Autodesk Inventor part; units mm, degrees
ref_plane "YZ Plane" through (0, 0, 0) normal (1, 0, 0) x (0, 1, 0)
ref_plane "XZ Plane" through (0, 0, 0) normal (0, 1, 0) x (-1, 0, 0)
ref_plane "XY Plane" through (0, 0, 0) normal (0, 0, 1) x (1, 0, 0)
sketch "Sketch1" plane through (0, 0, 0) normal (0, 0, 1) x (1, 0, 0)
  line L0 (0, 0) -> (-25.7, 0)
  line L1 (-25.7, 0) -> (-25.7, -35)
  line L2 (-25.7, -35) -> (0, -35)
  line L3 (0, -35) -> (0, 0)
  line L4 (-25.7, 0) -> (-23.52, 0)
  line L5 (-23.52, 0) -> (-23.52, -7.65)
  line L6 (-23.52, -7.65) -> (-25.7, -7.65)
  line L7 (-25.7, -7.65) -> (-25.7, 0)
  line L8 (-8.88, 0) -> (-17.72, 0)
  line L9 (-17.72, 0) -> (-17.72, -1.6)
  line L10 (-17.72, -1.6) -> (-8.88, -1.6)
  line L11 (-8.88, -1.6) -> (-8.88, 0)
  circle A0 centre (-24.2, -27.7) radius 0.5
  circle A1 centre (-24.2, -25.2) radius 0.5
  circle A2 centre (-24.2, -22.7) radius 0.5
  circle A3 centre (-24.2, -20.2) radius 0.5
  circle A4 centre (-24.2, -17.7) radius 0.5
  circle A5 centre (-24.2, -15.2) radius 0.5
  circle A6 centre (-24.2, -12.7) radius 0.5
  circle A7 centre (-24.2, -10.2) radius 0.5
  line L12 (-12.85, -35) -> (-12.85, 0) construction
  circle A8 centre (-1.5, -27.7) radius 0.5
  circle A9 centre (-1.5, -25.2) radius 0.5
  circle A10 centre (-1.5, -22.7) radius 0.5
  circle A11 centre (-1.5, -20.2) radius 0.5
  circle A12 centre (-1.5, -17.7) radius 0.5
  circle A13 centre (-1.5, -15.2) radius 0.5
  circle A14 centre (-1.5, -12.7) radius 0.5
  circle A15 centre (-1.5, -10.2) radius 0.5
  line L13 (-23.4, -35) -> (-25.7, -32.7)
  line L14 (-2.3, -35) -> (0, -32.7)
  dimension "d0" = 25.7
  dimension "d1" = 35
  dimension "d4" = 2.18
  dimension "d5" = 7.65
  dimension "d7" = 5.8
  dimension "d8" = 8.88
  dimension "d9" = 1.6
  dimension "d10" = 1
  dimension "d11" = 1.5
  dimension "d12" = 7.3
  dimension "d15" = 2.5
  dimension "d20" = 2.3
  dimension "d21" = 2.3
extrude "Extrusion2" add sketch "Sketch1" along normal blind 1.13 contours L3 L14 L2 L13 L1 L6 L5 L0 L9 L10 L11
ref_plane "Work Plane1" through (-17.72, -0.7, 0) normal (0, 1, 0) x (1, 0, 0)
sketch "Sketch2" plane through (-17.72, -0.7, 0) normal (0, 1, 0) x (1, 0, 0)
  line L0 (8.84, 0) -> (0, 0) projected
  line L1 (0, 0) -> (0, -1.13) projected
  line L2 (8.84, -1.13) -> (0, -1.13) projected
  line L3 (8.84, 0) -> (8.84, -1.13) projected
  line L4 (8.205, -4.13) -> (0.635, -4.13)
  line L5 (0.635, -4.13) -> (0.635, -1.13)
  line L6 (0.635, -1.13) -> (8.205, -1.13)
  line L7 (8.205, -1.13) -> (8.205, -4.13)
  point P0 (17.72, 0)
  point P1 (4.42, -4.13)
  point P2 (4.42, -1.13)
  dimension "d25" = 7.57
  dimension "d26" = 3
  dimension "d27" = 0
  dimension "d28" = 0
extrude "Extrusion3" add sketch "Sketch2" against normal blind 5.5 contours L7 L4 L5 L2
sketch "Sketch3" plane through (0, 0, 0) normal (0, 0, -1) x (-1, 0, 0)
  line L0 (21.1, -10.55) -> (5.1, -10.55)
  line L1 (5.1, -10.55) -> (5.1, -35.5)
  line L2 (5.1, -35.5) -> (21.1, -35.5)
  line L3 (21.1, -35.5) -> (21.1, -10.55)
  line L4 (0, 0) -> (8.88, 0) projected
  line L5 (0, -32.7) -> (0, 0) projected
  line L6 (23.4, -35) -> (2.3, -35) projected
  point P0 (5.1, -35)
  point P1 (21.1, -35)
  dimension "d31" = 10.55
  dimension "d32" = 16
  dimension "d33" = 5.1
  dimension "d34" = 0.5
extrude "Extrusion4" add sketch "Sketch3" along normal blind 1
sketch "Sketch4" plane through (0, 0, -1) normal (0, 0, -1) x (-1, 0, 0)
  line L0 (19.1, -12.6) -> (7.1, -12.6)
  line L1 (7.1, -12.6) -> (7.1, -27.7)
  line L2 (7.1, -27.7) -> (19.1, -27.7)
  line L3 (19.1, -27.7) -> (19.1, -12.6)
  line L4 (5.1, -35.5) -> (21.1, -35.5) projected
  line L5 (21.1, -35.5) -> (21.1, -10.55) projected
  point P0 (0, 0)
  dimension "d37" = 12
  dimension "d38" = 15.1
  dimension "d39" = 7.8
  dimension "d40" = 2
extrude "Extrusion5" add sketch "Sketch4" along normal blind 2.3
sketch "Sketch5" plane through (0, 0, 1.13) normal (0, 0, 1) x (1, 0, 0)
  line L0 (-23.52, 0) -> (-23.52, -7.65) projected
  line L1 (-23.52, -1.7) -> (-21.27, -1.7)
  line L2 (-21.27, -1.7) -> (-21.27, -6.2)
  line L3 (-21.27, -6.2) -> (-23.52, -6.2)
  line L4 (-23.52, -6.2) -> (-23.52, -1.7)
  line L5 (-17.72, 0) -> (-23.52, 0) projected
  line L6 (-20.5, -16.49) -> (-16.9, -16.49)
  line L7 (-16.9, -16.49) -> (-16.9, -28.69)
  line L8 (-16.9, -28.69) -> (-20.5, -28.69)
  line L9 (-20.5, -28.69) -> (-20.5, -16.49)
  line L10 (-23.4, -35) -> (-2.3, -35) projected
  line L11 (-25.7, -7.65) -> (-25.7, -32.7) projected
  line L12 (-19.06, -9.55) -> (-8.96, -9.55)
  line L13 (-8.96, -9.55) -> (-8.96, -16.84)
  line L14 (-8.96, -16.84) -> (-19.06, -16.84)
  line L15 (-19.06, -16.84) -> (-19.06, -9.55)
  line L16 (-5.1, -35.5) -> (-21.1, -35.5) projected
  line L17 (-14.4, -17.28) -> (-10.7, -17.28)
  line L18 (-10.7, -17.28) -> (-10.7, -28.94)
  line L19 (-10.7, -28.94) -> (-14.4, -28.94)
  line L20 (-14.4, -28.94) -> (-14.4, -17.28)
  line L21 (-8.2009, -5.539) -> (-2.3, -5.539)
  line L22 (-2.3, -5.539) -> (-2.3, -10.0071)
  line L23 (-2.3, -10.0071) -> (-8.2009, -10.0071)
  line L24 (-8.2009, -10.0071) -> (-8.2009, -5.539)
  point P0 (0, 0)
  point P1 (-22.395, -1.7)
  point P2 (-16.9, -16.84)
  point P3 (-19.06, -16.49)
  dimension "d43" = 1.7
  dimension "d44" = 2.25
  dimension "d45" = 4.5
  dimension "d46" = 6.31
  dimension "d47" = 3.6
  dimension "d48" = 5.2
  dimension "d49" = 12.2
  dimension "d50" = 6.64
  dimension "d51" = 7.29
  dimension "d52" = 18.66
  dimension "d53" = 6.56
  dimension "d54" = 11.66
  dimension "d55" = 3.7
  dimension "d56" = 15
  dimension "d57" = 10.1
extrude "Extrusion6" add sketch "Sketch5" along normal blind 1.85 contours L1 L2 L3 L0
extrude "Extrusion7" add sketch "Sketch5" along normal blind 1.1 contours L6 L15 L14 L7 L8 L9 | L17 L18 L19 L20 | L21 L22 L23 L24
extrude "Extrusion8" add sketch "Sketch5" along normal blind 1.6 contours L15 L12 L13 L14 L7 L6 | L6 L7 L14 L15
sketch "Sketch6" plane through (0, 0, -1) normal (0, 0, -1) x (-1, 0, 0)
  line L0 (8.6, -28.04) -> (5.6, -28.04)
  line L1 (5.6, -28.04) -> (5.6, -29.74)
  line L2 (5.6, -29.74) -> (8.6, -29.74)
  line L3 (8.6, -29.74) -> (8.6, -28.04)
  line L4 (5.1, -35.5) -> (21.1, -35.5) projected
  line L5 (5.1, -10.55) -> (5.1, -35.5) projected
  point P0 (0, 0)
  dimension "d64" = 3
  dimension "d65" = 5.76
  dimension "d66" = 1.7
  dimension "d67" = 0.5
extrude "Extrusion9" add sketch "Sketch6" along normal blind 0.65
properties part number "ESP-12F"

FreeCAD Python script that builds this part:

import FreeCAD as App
import Part
import Sketcher

V = App.Vector
Q = App.Units.Quantity

doc = App.newDocument("Part")
body = doc.addObject("PartDesign::Body", "Body")

# Sketch on XY plane
sketch1 = body.newObject("Sketcher::SketchObject", "Sketch")
sketch1.AttachmentSupport = (doc.getObject("XY_Plane"), [""])
sketch1.MapMode = "FlatFace"
sketch1.addGeometry([
    Part.LineSegment(V(0, -32.7, 0), V(0, 0, 0)),  # 0
    Part.LineSegment(V(0, 0, 0), V(-8.88, 0, 0)),  # 1
    Part.LineSegment(V(-8.88, 0, 0), V(-8.88, -1.6, 0)),  # 2
    Part.LineSegment(V(-8.88, -1.6, 0), V(-17.72, -1.6, 0)),  # 3
    Part.LineSegment(V(-17.72, -1.6, 0), V(-17.72, 0, 0)),  # 4
    Part.LineSegment(V(-17.72, 0, 0), V(-23.52, 0, 0)),  # 5
    Part.LineSegment(V(-23.52, 0, 0), V(-23.52, -7.65, 0)),  # 6
    Part.LineSegment(V(-23.52, -7.65, 0), V(-25.7, -7.65, 0)),  # 7
    Part.LineSegment(V(-25.7, -7.65, 0), V(-25.7, -32.7, 0)),  # 8
    Part.LineSegment(V(-25.7, -32.7, 0), V(-23.4, -35, 0)),  # 9
    Part.LineSegment(V(-23.4, -35, 0), V(-2.3, -35, 0)),  # 10
    Part.LineSegment(V(-2.3, -35, 0), V(0, -32.7, 0)),  # 11
    Part.Circle(V(-24.2, -27.7, 0), V(0, 0, 1), 0.5),  # 12
    Part.Circle(V(-24.2, -25.2, 0), V(0, 0, 1), 0.5),  # 13
    Part.Circle(V(-24.2, -22.7, 0), V(0, 0, 1), 0.5),  # 14
    Part.Circle(V(-24.2, -20.2, 0), V(0, 0, 1), 0.5),  # 15
    Part.Circle(V(-24.2, -17.7, 0), V(0, 0, 1), 0.5),  # 16
    Part.Circle(V(-1.5, -27.7, 0), V(0, 0, 1), 0.5),  # 17
    Part.Circle(V(-1.5, -25.2, 0), V(0, 0, 1), 0.5),  # 18
    Part.Circle(V(-1.5, -22.7, 0), V(0, 0, 1), 0.5),  # 19
    Part.Circle(V(-1.5, -20.2, 0), V(0, 0, 1), 0.5),  # 20
    Part.Circle(V(-1.5, -17.7, 0), V(0, 0, 1), 0.5),  # 21
    Part.Circle(V(-24.2, -15.2, 0), V(0, 0, 1), 0.5),  # 22
    Part.Circle(V(-24.2, -12.7, 0), V(0, 0, 1), 0.5),  # 23
    Part.Circle(V(-24.2, -10.2, 0), V(0, 0, 1), 0.5),  # 24
    Part.Circle(V(-1.5, -15.2, 0), V(0, 0, 1), 0.5),  # 25
    Part.Circle(V(-1.5, -12.7, 0), V(0, 0, 1), 0.5),  # 26
    Part.Circle(V(-1.5, -10.2, 0), V(0, 0, 1), 0.5),  # 27
], False)
sketch1.addConstraint([
    Sketcher.Constraint("Coincident", 0, 2, 1, 1),
    Sketcher.Constraint("Coincident", 1, 2, 2, 1),
    Sketcher.Constraint("Coincident", 2, 2, 3, 1),
    Sketcher.Constraint("Coincident", 3, 2, 4, 1),
    Sketcher.Constraint("Coincident", 4, 2, 5, 1),
    Sketcher.Constraint("Coincident", 5, 2, 6, 1),
    Sketcher.Constraint("Coincident", 6, 2, 7, 1),
    Sketcher.Constraint("Coincident", 7, 2, 8, 1),
    Sketcher.Constraint("Coincident", 8, 2, 9, 1),
    Sketcher.Constraint("Coincident", 9, 2, 10, 1),
    Sketcher.Constraint("Coincident", 10, 2, 11, 1),
    Sketcher.Constraint("Coincident", 11, 2, 0, 1),
    Sketcher.Constraint("Vertical", 0),
    Sketcher.Constraint("Horizontal", 1),
    Sketcher.Constraint("Vertical", 2),
    Sketcher.Constraint("Horizontal", 3),
    Sketcher.Constraint("Vertical", 4),
    Sketcher.Constraint("Horizontal", 5),
    Sketcher.Constraint("Vertical", 6),
    Sketcher.Constraint("Horizontal", 7),
    Sketcher.Constraint("Vertical", 8),
    Sketcher.Constraint("Horizontal", 10),
    Sketcher.Constraint("Coincident", 0, 2, -1, 1),
    Sketcher.Constraint("Equal", 12, 13),
    Sketcher.Constraint("Equal", 13, 14),
    Sketcher.Constraint("Equal", 14, 15),
    Sketcher.Constraint("Equal", 15, 16),
    Sketcher.Constraint("Equal", 16, 17),
    Sketcher.Constraint("Equal", 17, 18),
    Sketcher.Constraint("Equal", 18, 19),
    Sketcher.Constraint("Equal", 19, 20),
    Sketcher.Constraint("Equal", 20, 21),
    Sketcher.Constraint("Equal", 21, 22),
    Sketcher.Constraint("Equal", 22, 23),
    Sketcher.Constraint("Equal", 23, 24),
    Sketcher.Constraint("Equal", 24, 25),
    Sketcher.Constraint("Equal", 25, 26),
    Sketcher.Constraint("Equal", 26, 27),
    Sketcher.Constraint("PointOnObject", 4, 2, -1),
    Sketcher.Constraint("Perpendicular", 9, 11),
    Sketcher.Constraint("Horizontal", 12, 3, 17, 3),
    Sketcher.Constraint("Horizontal", 13, 3, 18, 3),
    Sketcher.Constraint("Horizontal", 14, 3, 19, 3),
    Sketcher.Constraint("Horizontal", 15, 3, 20, 3),
    Sketcher.Constraint("Horizontal", 16, 3, 21, 3),
    Sketcher.Constraint("Horizontal", 22, 3, 25, 3),
    Sketcher.Constraint("Horizontal", 23, 3, 26, 3),
    Sketcher.Constraint("Horizontal", 24, 3, 27, 3),
    Sketcher.Constraint("Horizontal", 8, 2, 11, 2),
    Sketcher.Constraint("Vertical", 12, 3, 13, 3),
    Sketcher.Constraint("Vertical", 13, 3, 14, 3),
    Sketcher.Constraint("Vertical", 14, 3, 15, 3),
    Sketcher.Constraint("Vertical", 15, 3, 16, 3),
    Sketcher.Constraint("Vertical", 17, 3, 18, 3),
    Sketcher.Constraint("Vertical", 18, 3, 19, 3),
    Sketcher.Constraint("Vertical", 19, 3, 20, 3),
    Sketcher.Constraint("Vertical", 20, 3, 21, 3),
    Sketcher.Constraint("Vertical", 16, 3, 22, 3),
    Sketcher.Constraint("Vertical", 22, 3, 23, 3),
    Sketcher.Constraint("Vertical", 23, 3, 24, 3),
    Sketcher.Constraint("Vertical", 21, 3, 25, 3),
    Sketcher.Constraint("Vertical", 25, 3, 26, 3),
    Sketcher.Constraint("Vertical", 26, 3, 27, 3),
    Sketcher.Constraint("Equal", 9, 11),
    Sketcher.Constraint("Diameter", 12, Q("1 mm")),
    Sketcher.Constraint("DistanceX", 5, 2, 5, 1, Q("5.8 mm")),
    Sketcher.Constraint("DistanceY", 2, 2, 2, 1, Q("1.6 mm")),
    Sketcher.Constraint("DistanceY", 9, 2, -1, 1, Q("35 mm")),
    Sketcher.Constraint("DistanceY", 12, 3, 16, 3, Q("10 mm")),
    Sketcher.Constraint("DistanceY", 13, 3, 22, 3, Q("10 mm")),
    Sketcher.Constraint("DistanceY", 14, 3, 23, 3, Q("10 mm")),
    Sketcher.Constraint("DistanceY", 15, 3, 24, 3, Q("10 mm")),
    Sketcher.Constraint("DistanceY", 8, 2, 14, 3, Q("10 mm")),
    Sketcher.Constraint("DistanceX", 1, 2, 1, 1, Q("8.88 mm")),
    Sketcher.Constraint("DistanceX", 7, 2, 7, 1, Q("2.18 mm")),
    Sketcher.Constraint("DistanceY", 6, 2, 6, 1, Q("7.65 mm")),
    Sketcher.Constraint("DistanceX", 17, 3, -1, 1, Q("1.5 mm")),
    Sketcher.Constraint("DistanceX", 7, 2, -1, 1, Q("25.7 mm")),
    Sketcher.Constraint("DistanceX", 10, 2, -1, 1, Q("2.3 mm")),
    Sketcher.Constraint("DistanceY", 12, 3, 13, 3, Q("2.5 mm")),
    Sketcher.Constraint("DistanceY", 13, 3, 14, 3, Q("2.5 mm")),
    Sketcher.Constraint("DistanceY", 14, 3, 15, 3, Q("2.5 mm")),
    Sketcher.Constraint("DistanceX", 7, 2, 24, 3, Q("1.5 mm")),
])
pad1 = body.newObject("PartDesign::Pad", "Pad")
pad1.Profile = sketch1
pad1.Length = 1.13

# Sketch on XZ plane
sketch2 = body.newObject("Sketcher::SketchObject", "Sketch001")
sketch2.AttachmentSupport = (doc.getObject("XZ_Plane"), [""])
sketch2.MapMode = "FlatFace"
sketch2.AttachmentOffset = App.Placement(V(0, 0, 0.7), App.Rotation())
sketch2.addGeometry([
    Part.LineSegment(V(-9.515, 4.13, 0), V(-9.515, 1.13, 0)),
    Part.LineSegment(V(-9.515, 1.13, 0), V(-17.085, 1.13, 0)),
    Part.LineSegment(V(-17.085, 1.13, 0), V(-17.085, 4.13, 0)),
    Part.LineSegment(V(-17.085, 4.13, 0), V(-9.515, 4.13, 0)),
], False)
sketch2.addConstraint([
    Sketcher.Constraint("Coincident", 0, 2, 1, 1),
    Sketcher.Constraint("Coincident", 1, 2, 2, 1),
    Sketcher.Constraint("Coincident", 2, 2, 3, 1),
    Sketcher.Constraint("Coincident", 3, 2, 0, 1),
    Sketcher.Constraint("Vertical", 0),
    Sketcher.Constraint("Horizontal", 1),
    Sketcher.Constraint("Vertical", 2),
    Sketcher.Constraint("Horizontal", 3),
    Sketcher.Constraint("DistanceY", 0, 2, 0, 1, Q("3 mm")),
    Sketcher.Constraint("DistanceX", 1, 2, 1, 1, Q("7.57 mm")),
    Sketcher.Constraint("DistanceY", -1, 1, 0, 2, Q("1.13 mm")),
    Sketcher.Constraint("DistanceX", 0, 2, -1, 1, Q("9.515 mm")),
])
pad2 = body.newObject("PartDesign::Pad", "Pad001")
pad2.Profile = sketch2
pad2.Length = 5.5

# Sketch on XY plane
sketch3 = body.newObject("Sketcher::SketchObject", "Sketch002")
sketch3.AttachmentSupport = (doc.getObject("XY_Plane"), [""])
sketch3.MapMode = "FlatFace"
sketch3.addGeometry([
    Part.LineSegment(V(-21.1, -10.55, 0), V(-5.1, -10.55, 0)),
    Part.LineSegment(V(-5.1, -10.55, 0), V(-5.1, -35.5, 0)),
    Part.LineSegment(V(-5.1, -35.5, 0), V(-21.1, -35.5, 0)),
    Part.LineSegment(V(-21.1, -35.5, 0), V(-21.1, -10.55, 0)),
], False)
sketch3.addConstraint([
    Sketcher.Constraint("Coincident", 0, 2, 1, 1),
    Sketcher.Constraint("Coincident", 1, 2, 2, 1),
    Sketcher.Constraint("Coincident", 2, 2, 3, 1),
    Sketcher.Constraint("Coincident", 3, 2, 0, 1),
    Sketcher.Constraint("Horizontal", 0),
    Sketcher.Constraint("Vertical", 1),
    Sketcher.Constraint("Horizontal", 2),
    Sketcher.Constraint("Vertical", 3),
    Sketcher.Constraint("DistanceX", 0, 1, 0, 2, Q("16 mm")),
    Sketcher.Constraint("DistanceX", 0, 2, -1, 1, Q("5.1 mm")),
    Sketcher.Constraint("DistanceY", 0, 2, -1, 1, Q("10.55 mm")),
    Sketcher.Constraint("DistanceY", 1, 2, 1, 1, Q("24.95 mm")),
])
pad3 = body.newObject("PartDesign::Pad", "Pad002")
pad3.Profile = sketch3
pad3.Length = 1
pad3.Reversed = True

# Sketch on XY plane
sketch4 = body.newObject("Sketcher::SketchObject", "Sketch003")
sketch4.AttachmentSupport = (doc.getObject("XY_Plane"), [""])
sketch4.MapMode = "FlatFace"
sketch4.AttachmentOffset = App.Placement(V(0, 0, -1), App.Rotation())
sketch4.addGeometry([
    Part.LineSegment(V(-19.1, -27.7, 0), V(-19.1, -12.6, 0)),
    Part.LineSegment(V(-19.1, -12.6, 0), V(-7.1, -12.6, 0)),
    Part.LineSegment(V(-7.1, -12.6, 0), V(-7.1, -27.7, 0)),
    Part.LineSegment(V(-7.1, -27.7, 0), V(-19.1, -27.7, 0)),
], False)
sketch4.addConstraint([
    Sketcher.Constraint("Coincident", 0, 2, 1, 1),
    Sketcher.Constraint("Coincident", 1, 2, 2, 1),
    Sketcher.Constraint("Coincident", 2, 2, 3, 1),
    Sketcher.Constraint("Coincident", 3, 2, 0, 1),
    Sketcher.Constraint("Vertical", 0),
    Sketcher.Constraint("Horizontal", 1),
    Sketcher.Constraint("Vertical", 2),
    Sketcher.Constraint("Horizontal", 3),
    Sketcher.Constraint("DistanceX", 1, 1, 1, 2, Q("12 mm")),
    Sketcher.Constraint("DistanceY", 0, 1, 0, 2, Q("15.1 mm")),
    Sketcher.Constraint("DistanceX", 0, 2, -1, 1, Q("19.1 mm")),
    Sketcher.Constraint("DistanceY", 0, 2, -1, 1, Q("12.6 mm")),
])
pad4 = body.newObject("PartDesign::Pad", "Pad003")
pad4.Profile = sketch4
pad4.Length = 2.3
pad4.Reversed = True

# Sketch on XY plane
sketch5 = body.newObject("Sketcher::SketchObject", "Sketch004")
sketch5.AttachmentSupport = (doc.getObject("XY_Plane"), [""])
sketch5.MapMode = "FlatFace"
sketch5.AttachmentOffset = App.Placement(V(0, 0, 1.13), App.Rotation())
sketch5.addGeometry([
    Part.LineSegment(V(-21.27, -1.7, 0), V(-23.52, -1.7, 0)),
    Part.LineSegment(V(-23.52, -1.7, 0), V(-23.52, -6.2, 0)),
    Part.LineSegment(V(-23.52, -6.2, 0), V(-21.27, -6.2, 0)),
    Part.LineSegment(V(-21.27, -6.2, 0), V(-21.27, -1.7, 0)),
], False)
sketch5.addConstraint([
    Sketcher.Constraint("Coincident", 0, 2, 1, 1),
    Sketcher.Constraint("Coincident", 1, 2, 2, 1),
    Sketcher.Constraint("Coincident", 2, 2, 3, 1),
    Sketcher.Constraint("Coincident", 3, 2, 0, 1),
    Sketcher.Constraint("Horizontal", 0),
    Sketcher.Constraint("Vertical", 1),
    Sketcher.Constraint("Horizontal", 2),
    Sketcher.Constraint("Vertical", 3),
    Sketcher.Constraint("DistanceY", 1, 2, 1, 1, Q("4.5 mm")),
    Sketcher.Constraint("DistanceX", 0, 2, 0, 1, Q("2.25 mm")),
    Sketcher.Constraint("DistanceY", 0, 2, -1, 1, Q("1.7 mm")),
    Sketcher.Constraint("DistanceX", 0, 2, -1, 1, Q("23.52 mm")),
])
pad5 = body.newObject("PartDesign::Pad", "Pad004")
pad5.Profile = sketch5
pad5.Length = 1.85

# Sketch on XY plane
sketch6 = body.newObject("Sketcher::SketchObject", "Sketch005")
sketch6.AttachmentSupport = (doc.getObject("XY_Plane"), [""])
sketch6.MapMode = "FlatFace"
sketch6.AttachmentOffset = App.Placement(V(0, 0, 1.13), App.Rotation())
sketch6.addGeometry([
    Part.LineSegment(V(-19.06, -16.49, 0), V(-20.5, -16.49, 0)),  # 0
    Part.LineSegment(V(-20.5, -16.49, 0), V(-20.5, -28.69, 0)),  # 1
    Part.LineSegment(V(-20.5, -28.69, 0), V(-16.9, -28.69, 0)),  # 2
    Part.LineSegment(V(-16.9, -28.69, 0), V(-16.9, -16.84, 0)),  # 3
    Part.LineSegment(V(-16.9, -16.84, 0), V(-19.06, -16.84, 0)),  # 4
    Part.LineSegment(V(-19.06, -16.84, 0), V(-19.06, -16.49, 0)),  # 5
    Part.LineSegment(V(-10.7, -17.28, 0), V(-14.4, -17.28, 0)),  # 6
    Part.LineSegment(V(-14.4, -17.28, 0), V(-14.4, -28.94, 0)),  # 7
    Part.LineSegment(V(-14.4, -28.94, 0), V(-10.7, -28.94, 0)),  # 8
    Part.LineSegment(V(-10.7, -28.94, 0), V(-10.7, -17.28, 0)),  # 9
    Part.LineSegment(V(-2.3, -5.539, 0), V(-8.2009, -5.539, 0)),  # 10
    Part.LineSegment(V(-8.2009, -5.539, 0), V(-8.2009, -10.0071, 0)),  # 11
    Part.LineSegment(V(-8.2009, -10.0071, 0), V(-2.3, -10.0071, 0)),  # 12
    Part.LineSegment(V(-2.3, -10.0071, 0), V(-2.3, -5.539, 0)),  # 13
], False)
sketch6.addConstraint([
    Sketcher.Constraint("Coincident", 0, 2, 1, 1),
    Sketcher.Constraint("Coincident", 1, 2, 2, 1),
    Sketcher.Constraint("Coincident", 2, 2, 3, 1),
    Sketcher.Constraint("Coincident", 3, 2, 4, 1),
    Sketcher.Constraint("Coincident", 4, 2, 5, 1),
    Sketcher.Constraint("Coincident", 5, 2, 0, 1),
    Sketcher.Constraint("Coincident", 6, 2, 7, 1),
    Sketcher.Constraint("Coincident", 7, 2, 8, 1),
    Sketcher.Constraint("Coincident", 8, 2, 9, 1),
    Sketcher.Constraint("Coincident", 9, 2, 6, 1),
    Sketcher.Constraint("Coincident", 10, 2, 11, 1),
    Sketcher.Constraint("Coincident", 11, 2, 12, 1),
    Sketcher.Constraint("Coincident", 12, 2, 13, 1),
    Sketcher.Constraint("Coincident", 13, 2, 10, 1),
    Sketcher.Constraint("Horizontal", 0),
    Sketcher.Constraint("Vertical", 1),
    Sketcher.Constraint("Horizontal", 2),
    Sketcher.Constraint("Vertical", 3),
    Sketcher.Constraint("Horizontal", 4),
    Sketcher.Constraint("Vertical", 5),
    Sketcher.Constraint("Horizontal", 6),
    Sketcher.Constraint("Vertical", 7),
    Sketcher.Constraint("Horizontal", 8),
    Sketcher.Constraint("Vertical", 9),
    Sketcher.Constraint("Horizontal", 10),
    Sketcher.Constraint("Vertical", 11),
    Sketcher.Constraint("Horizontal", 12),
    Sketcher.Constraint("Vertical", 13),
    Sketcher.Constraint("DistanceX", 2, 1, 2, 2, Q("3.6 mm")),
    Sketcher.Constraint("DistanceX", 6, 2, 6, 1, Q("3.7 mm")),
    Sketcher.Constraint("DistanceY", 1, 2, 1, 1, Q("12.2 mm")),
    Sketcher.Constraint("DistanceY", 7, 2, 7, 1, Q("11.66 mm")),
    Sketcher.Constraint("DistanceX", 0, 2, 0, 1, Q("1.44 mm")),
    Sketcher.Constraint("DistanceY", 3, 1, 3, 2, Q("11.85 mm")),
    Sketcher.Constraint("DistanceX", 0, 2, -1, 1, Q("20.5 mm")),
    Sketcher.Constraint("DistanceX", 6, 2, -1, 1, Q("14.4 mm")),
    Sketcher.Constraint("DistanceX", 12, 2, -1, 1, Q("2.3 mm")),
    Sketcher.Constraint("DistanceY", 7, 2, 3, 2, Q("12.1 mm")),
    Sketcher.Constraint("DistanceX", 10, 2, 10, 1, Q("5.901 mm")),
    Sketcher.Constraint("DistanceY", 11, 2, 11, 1, Q("4.468 mm")),
    Sketcher.Constraint("DistanceY", 0, 2, -1, 1, Q("16.49 mm")),
    Sketcher.Constraint("DistanceY", 10, 2, -1, 1, Q("5.539 mm")),
])
pad6 = body.newObject("PartDesign::Pad", "Pad005")
pad6.Profile = sketch6
pad6.Length = 1.1

# Sketch on XY plane
sketch7 = body.newObject("Sketcher::SketchObject", "Sketch006")
sketch7.AttachmentSupport = (doc.getObject("XY_Plane"), [""])
sketch7.MapMode = "FlatFace"
sketch7.AttachmentOffset = App.Placement(V(0, 0, 1.13), App.Rotation())
sketch7.addGeometry([
    Part.LineSegment(V(-19.06, -9.55, 0), V(-19.06, -16.84, 0)),
    Part.LineSegment(V(-19.06, -16.84, 0), V(-8.96, -16.84, 0)),
    Part.LineSegment(V(-8.96, -16.84, 0), V(-8.96, -9.55, 0)),
    Part.LineSegment(V(-8.96, -9.55, 0), V(-19.06, -9.55, 0)),
], False)
sketch7.addConstraint([
    Sketcher.Constraint("Coincident", 0, 2, 1, 1),
    Sketcher.Constraint("Coincident", 1, 2, 2, 1),
    Sketcher.Constraint("Coincident", 2, 2, 3, 1),
    Sketcher.Constraint("Coincident", 3, 2, 0, 1),
    Sketcher.Constraint("Vertical", 0),
    Sketcher.Constraint("Horizontal", 1),
    Sketcher.Constraint("Vertical", 2),
    Sketcher.Constraint("Horizontal", 3),
    Sketcher.Constraint("DistanceX", 1, 1, 1, 2, Q("10.1 mm")),
    Sketcher.Constraint("DistanceY", 0, 2, 0, 1, Q("7.29 mm")),
    Sketcher.Constraint("DistanceX", 0, 2, -1, 1, Q("19.06 mm")),
    Sketcher.Constraint("DistanceY", 0, 2, -1, 1, Q("16.84 mm")),
])
pad7 = body.newObject("PartDesign::Pad", "Pad006")
pad7.Profile = sketch7
pad7.Length = 1.6

# Sketch on XY plane
sketch8 = body.newObject("Sketcher::SketchObject", "Sketch007")
sketch8.AttachmentSupport = (doc.getObject("XY_Plane"), [""])
sketch8.MapMode = "FlatFace"
sketch8.AttachmentOffset = App.Placement(V(0, 0, -1), App.Rotation())
sketch8.addGeometry([
    Part.LineSegment(V(-8.6, -29.74, 0), V(-8.6, -28.04, 0)),
    Part.LineSegment(V(-8.6, -28.04, 0), V(-5.6, -28.04, 0)),
    Part.LineSegment(V(-5.6, -28.04, 0), V(-5.6, -29.74, 0)),
    Part.LineSegment(V(-5.6, -29.74, 0), V(-8.6, -29.74, 0)),
], False)
sketch8.addConstraint([
    Sketcher.Constraint("Coincident", 0, 2, 1, 1),
    Sketcher.Constraint("Coincident", 1, 2, 2, 1),
    Sketcher.Constraint("Coincident", 2, 2, 3, 1),
    Sketcher.Constraint("Coincident", 3, 2, 0, 1),
    Sketcher.Constraint("Vertical", 0),
    Sketcher.Constraint("Horizontal", 1),
    Sketcher.Constraint("Vertical", 2),
    Sketcher.Constraint("Horizontal", 3),
    Sketcher.Constraint("DistanceX", 1, 1, 1, 2, Q("3 mm")),
    Sketcher.Constraint("DistanceY", 0, 1, 0, 2, Q("1.7 mm")),
    Sketcher.Constraint("DistanceX", 0, 2, -1, 1, Q("8.6 mm")),
    Sketcher.Constraint("DistanceY", 0, 2, -1, 1, Q("28.04 mm")),
])
pad8 = body.newObject("PartDesign::Pad", "Pad007")
pad8.Profile = sketch8
pad8.Length = 0.65
pad8.Reversed = True

doc.recompute()
